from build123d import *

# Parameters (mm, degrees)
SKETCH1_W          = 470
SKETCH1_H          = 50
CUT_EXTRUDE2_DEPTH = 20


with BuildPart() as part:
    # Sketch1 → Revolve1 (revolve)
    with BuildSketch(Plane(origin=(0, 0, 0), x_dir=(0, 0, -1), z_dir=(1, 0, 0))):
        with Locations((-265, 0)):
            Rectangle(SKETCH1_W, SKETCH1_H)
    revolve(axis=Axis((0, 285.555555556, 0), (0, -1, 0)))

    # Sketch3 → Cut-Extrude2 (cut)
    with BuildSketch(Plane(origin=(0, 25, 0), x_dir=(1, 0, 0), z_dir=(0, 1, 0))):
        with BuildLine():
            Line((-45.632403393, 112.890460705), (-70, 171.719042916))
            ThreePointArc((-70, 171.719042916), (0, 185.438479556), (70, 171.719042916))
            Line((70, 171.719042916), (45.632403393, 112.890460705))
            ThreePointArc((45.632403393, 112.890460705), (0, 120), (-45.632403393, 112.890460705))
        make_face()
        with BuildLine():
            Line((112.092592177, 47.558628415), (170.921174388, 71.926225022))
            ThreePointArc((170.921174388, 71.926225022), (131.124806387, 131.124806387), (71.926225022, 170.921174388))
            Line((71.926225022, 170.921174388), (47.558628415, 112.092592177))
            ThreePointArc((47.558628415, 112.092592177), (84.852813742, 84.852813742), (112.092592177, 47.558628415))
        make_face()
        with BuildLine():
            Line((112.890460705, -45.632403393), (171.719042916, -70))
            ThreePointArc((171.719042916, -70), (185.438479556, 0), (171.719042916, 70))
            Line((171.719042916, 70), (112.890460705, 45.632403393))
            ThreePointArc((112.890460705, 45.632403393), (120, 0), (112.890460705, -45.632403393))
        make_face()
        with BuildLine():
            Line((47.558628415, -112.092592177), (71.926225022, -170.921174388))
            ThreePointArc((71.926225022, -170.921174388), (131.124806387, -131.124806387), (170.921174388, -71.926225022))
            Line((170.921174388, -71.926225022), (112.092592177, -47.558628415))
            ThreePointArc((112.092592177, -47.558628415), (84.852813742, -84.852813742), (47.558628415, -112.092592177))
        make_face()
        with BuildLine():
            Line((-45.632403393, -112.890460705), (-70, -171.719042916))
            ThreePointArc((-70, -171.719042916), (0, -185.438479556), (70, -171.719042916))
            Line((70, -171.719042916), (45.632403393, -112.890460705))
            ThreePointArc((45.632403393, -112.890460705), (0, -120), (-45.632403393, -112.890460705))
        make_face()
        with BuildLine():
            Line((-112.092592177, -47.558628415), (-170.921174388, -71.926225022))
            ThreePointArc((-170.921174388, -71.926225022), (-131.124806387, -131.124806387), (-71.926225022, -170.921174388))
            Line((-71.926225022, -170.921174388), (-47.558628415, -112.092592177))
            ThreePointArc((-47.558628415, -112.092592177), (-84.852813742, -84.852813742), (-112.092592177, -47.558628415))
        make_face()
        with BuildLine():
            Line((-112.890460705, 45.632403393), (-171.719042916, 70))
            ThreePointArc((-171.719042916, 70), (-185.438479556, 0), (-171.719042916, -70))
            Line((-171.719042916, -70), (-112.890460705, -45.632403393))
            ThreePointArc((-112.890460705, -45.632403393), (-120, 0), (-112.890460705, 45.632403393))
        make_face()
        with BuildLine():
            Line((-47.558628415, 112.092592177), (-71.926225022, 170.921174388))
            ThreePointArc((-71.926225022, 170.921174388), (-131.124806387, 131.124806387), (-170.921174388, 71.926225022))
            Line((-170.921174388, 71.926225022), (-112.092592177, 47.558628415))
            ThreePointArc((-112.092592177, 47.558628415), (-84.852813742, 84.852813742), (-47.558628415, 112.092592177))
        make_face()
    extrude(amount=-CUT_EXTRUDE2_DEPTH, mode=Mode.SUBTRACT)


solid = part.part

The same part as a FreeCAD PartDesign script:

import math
import FreeCAD as App
import Part
import Sketcher
Q = App.Units.Quantity

doc = App.newDocument("Part")
body = doc.addObject("PartDesign::Body", "Body")

sketch1 = body.newObject("Sketcher::SketchObject", "Sketch")
sketch1.AttachmentSupport = (doc.getObject("YZ_Plane"), [""])
sketch1.MapMode = "FlatFace"
sketch1.addGeometry([
    Part.LineSegment(App.Vector(25, 500, 0), App.Vector(-25, 500, 0)),
    Part.LineSegment(App.Vector(-25, 500, 0), App.Vector(-25, 30, 0)),
    Part.LineSegment(App.Vector(-25, 30, 0), App.Vector(25, 30, 0)),
    Part.LineSegment(App.Vector(25, 30, 0), App.Vector(25, 500, 0)),
], False)
sketch1.addConstraint([
    Sketcher.Constraint("Coincident", 0, 2, 1, 1),
    Sketcher.Constraint("Coincident", 1, 2, 2, 1),
    Sketcher.Constraint("Coincident", 2, 2, 3, 1),
    Sketcher.Constraint("Coincident", 3, 2, 0, 1),
    Sketcher.Constraint("Horizontal", 0),
    Sketcher.Constraint("Vertical", 1),
    Sketcher.Constraint("Horizontal", 2),
    Sketcher.Constraint("Vertical", 3),
    Sketcher.Constraint("DistanceX", 0, 2, 0, 1, 50.0),
    Sketcher.Constraint("DistanceY", 1, 2, 1, 1, 470.0),
    Sketcher.Constraint("DistanceX", 0, 2, -1, 1, 25.0),
    Sketcher.Constraint("DistanceY", -1, 1, 0, 2, 500.0),
])
revolution = body.newObject("PartDesign::Revolution", "Revolution")
revolution.Profile = sketch1
revolution.ReferenceAxis = (sketch1, ["H_Axis"])
revolution.Angle = 360

sketch2 = body.newObject("Sketcher::SketchObject", "Sketch001")
sketch2.AttachmentSupport = (doc.getObject("XZ_Plane"), [""])
sketch2.MapMode = "FlatFace"
sketch2.AttachmentOffset = App.Placement(App.Vector(0, 0, -25), App.Rotation())
sketch2.addGeometry([
    Part.LineSegment(App.Vector(-70, -171.719043, 0), App.Vector(-45.632403, -112.890461, 0)),
    Part.ArcOfCircle(Part.Circle(App.Vector(0, 30, 0), App.Vector(0, 0, 1), 150), math.radians(-107.711004), math.radians(-72.288996)),
    Part.LineSegment(App.Vector(45.632403, -112.890461, 0), App.Vector(70, -171.719043, 0)),
    Part.ArcOfCircle(Part.Circle(App.Vector(0, 0, 0), App.Vector(0, 0, 1), 185.43848), math.radians(-112.177903), math.radians(-67.822097)),
    Part.LineSegment(App.Vector(112.092592, -47.558628, 0), App.Vector(170.921174, -71.926225, 0)),
    Part.ArcOfCircle(Part.Circle(App.Vector(0, 0, 0), App.Vector(0, 0, 1), 185.43848), math.radians(-67.177903), math.radians(-22.822097)),
    Part.LineSegment(App.Vector(71.926225, -170.921174, 0), App.Vector(47.558628, -112.092592, 0)),
    Part.ArcOfCircle(Part.Circle(App.Vector(-21.213203, 21.213203, 0), App.Vector(0, 0, 1), 150), math.radians(-62.711004), math.radians(-27.288996)),
    Part.LineSegment(App.Vector(112.890461, 45.632403, 0), App.Vector(171.719043, 70, 0)),
    Part.ArcOfCircle(Part.Circle(App.Vector(0, 0, 0), App.Vector(0, 0, 1), 185.43848), math.radians(-22.177903), math.radians(22.177903)),
    Part.LineSegment(App.Vector(171.719043, -70, 0), App.Vector(112.890461, -45.632403, 0)),
    Part.ArcOfCircle(Part.Circle(App.Vector(-30, 0, 0), App.Vector(0, 0, 1), 150), math.radians(-17.711004), math.radians(17.711004)),
    Part.LineSegment(App.Vector(47.558628, 112.092592, 0), App.Vector(71.926225, 170.921174, 0)),
    Part.ArcOfCircle(Part.Circle(App.Vector(0, 0, 0), App.Vector(0, 0, 1), 185.43848), math.radians(22.822097), math.radians(67.177903)),
    Part.LineSegment(App.Vector(170.921174, 71.926225, 0), App.Vector(112.092592, 47.558628, 0)),
    Part.ArcOfCircle(Part.Circle(App.Vector(-21.213203, -21.213203, 0), App.Vector(0, 0, 1), 150), math.radians(27.288996), math.radians(62.711004)),
    Part.LineSegment(App.Vector(-45.632403, 112.890461, 0), App.Vector(-70, 171.719043, 0)),
    Part.ArcOfCircle(Part.Circle(App.Vector(0, 0, 0), App.Vector(0, 0, 1), 185.43848), math.radians(67.822097), math.radians(112.177903)),
    Part.LineSegment(App.Vector(70, 171.719043, 0), App.Vector(45.632403, 112.890461, 0)),
    Part.ArcOfCircle(Part.Circle(App.Vector(0, -30, 0), App.Vector(0, 0, 1), 150), math.radians(72.288996), math.radians(107.711004)),
    Part.LineSegment(App.Vector(-112.092592, 47.558628, 0), App.Vector(-170.921174, 71.926225, 0)),
    Part.ArcOfCircle(Part.Circle(App.Vector(0, 0, 0), App.Vector(0, 0, 1), 185.43848), math.radians(112.822097), math.radians(157.177903)),
    Part.LineSegment(App.Vector(-71.926225, 170.921174, 0), App.Vector(-47.558628, 112.092592, 0)),
    Part.ArcOfCircle(Part.Circle(App.Vector(21.213203, -21.213203, 0), App.Vector(0, 0, 1), 150), math.radians(117.288996), math.radians(152.711004)),
    Part.LineSegment(App.Vector(-112.890461, -45.632403, 0), App.Vector(-171.719043, -70, 0)),
    Part.ArcOfCircle(Part.Circle(App.Vector(0, 0, 0), App.Vector(0, 0, 1), 185.43848), math.radians(157.822097), math.radians(202.177903)),
    Part.LineSegment(App.Vector(-171.719043, 70, 0), App.Vector(-112.890461, 45.632403, 0)),
    Part.ArcOfCircle(Part.Circle(App.Vector(30, 0, 0), App.Vector(0, 0, 1), 150), math.radians(162.288996), math.radians(197.711004)),
    Part.LineSegment(App.Vector(-47.558628, -112.092592, 0), App.Vector(-71.926225, -170.921174, 0)),
    Part.ArcOfCircle(Part.Circle(App.Vector(0, 0, 0), App.Vector(0, 0, 1), 185.43848), math.radians(-157.177903), math.radians(-112.822097)),
    Part.LineSegment(App.Vector(-170.921174, -71.926225, 0), App.Vector(-112.092592, -47.558628, 0)),
    Part.ArcOfCircle(Part.Circle(App.Vector(21.213203, 21.213203, 0), App.Vector(0, 0, 1), 150), math.radians(-152.711004), math.radians(-117.288996)),
], False)
sketch2.addConstraint([
    Sketcher.Constraint("Coincident", 0, 2, 1, 1),
    Sketcher.Constraint("Coincident", 1, 2, 2, 1),
    Sketcher.Constraint("Coincident", 2, 2, 3, 2),
    Sketcher.Constraint("Coincident", 3, 1, 0, 1),
    Sketcher.Constraint("Coincident", 4, 2, 5, 2),
    Sketcher.Constraint("Coincident", 5, 1, 6, 1),
    Sketcher.Constraint("Coincident", 6, 2, 7, 1),
    Sketcher.Constraint("Coincident", 7, 2, 4, 1),
    Sketcher.Constraint("Coincident", 8, 2, 9, 2),
    Sketcher.Constraint("Coincident", 9, 1, 10, 1),
    Sketcher.Constraint("Coincident", 10, 2, 11, 1),
    Sketcher.Constraint("Coincident", 11, 2, 8, 1),
    Sketcher.Constraint("Coincident", 12, 2, 13, 2),
    Sketcher.Constraint("Coincident", 13, 1, 14, 1),
    Sketcher.Constraint("Coincident", 14, 2, 15, 1),
    Sketcher.Constraint("Coincident", 15, 2, 12, 1),
    Sketcher.Constraint("Coincident", 16, 2, 17, 2),
    Sketcher.Constraint("Coincident", 17, 1, 18, 1),
    Sketcher.Constraint("Coincident", 18, 2, 19, 1),
    Sketcher.Constraint("Coincident", 19, 2, 16, 1),
    Sketcher.Constraint("Coincident", 20, 2, 21, 2),
    Sketcher.Constraint("Coincident", 21, 1, 22, 1),
    Sketcher.Constraint("Coincident", 22, 2, 23, 1),
    Sketcher.Constraint("Coincident", 23, 2, 20, 1),
    Sketcher.Constraint("Coincident", 24, 2, 25, 2),
    Sketcher.Constraint("Coincident", 25, 1, 26, 1),
    Sketcher.Constraint("Coincident", 26, 2, 27, 1),
    Sketcher.Constraint("Coincident", 27, 2, 24, 1),
    Sketcher.Constraint("Coincident", 28, 2, 29, 2),
    Sketcher.Constraint("Coincident", 29, 1, 30, 1),
    Sketcher.Constraint("Coincident", 30, 2, 31, 1),
    Sketcher.Constraint("Coincident", 31, 2, 28, 1),
    Sketcher.Constraint("Coincident", 3, 3, -1, 1),
    Sketcher.Constraint("Coincident", 5, 3, -1, 1),
    Sketcher.Constraint("Coincident", 9, 3, -1, 1),
    Sketcher.Constraint("Coincident", 13, 3, -1, 1),
    Sketcher.Constraint("Coincident", 17, 3, -1, 1),
    Sketcher.Constraint("Coincident", 21, 3, -1, 1),
    Sketcher.Constraint("Coincident", 25, 3, -1, 1),
    Sketcher.Constraint("Coincident", 29, 3, -1, 1),
    Sketcher.Constraint("Equal", 3, 5),
    Sketcher.Constraint("Equal", 1, 7),
    Sketcher.Constraint("Equal", 5, 9),
    Sketcher.Constraint("Equal", 7, 11),
    Sketcher.Constraint("Equal", 9, 13),
    Sketcher.Constraint("Equal", 11, 15),
    Sketcher.Constraint("Equal", 13, 17),
    Sketcher.Constraint("Equal", 15, 19),
    Sketcher.Constraint("Equal", 17, 21),
    Sketcher.Constraint("Equal", 19, 23),
    Sketcher.Constraint("Equal", 21, 25),
    Sketcher.Constraint("Equal", 23, 27),
    Sketcher.Constraint("Equal", 25, 29),
    Sketcher.Constraint("Equal", 27, 31),
    Sketcher.Constraint("Symmetric", 1, 3, 19, 3, -1, 1),
    Sketcher.Constraint("Symmetric", 7, 3, 23, 3, -1, 1),
    Sketcher.Constraint("Symmetric", 11, 3, 27, 3, -1, 1),
    Sketcher.Constraint("Symmetric", 15, 3, 31, 3, -1, 1),
    Sketcher.Constraint("Symmetric", 15, 3, 23, 3, -2),
    Sketcher.Constraint("Symmetric", 0, 2, 1, 2, -2),
    Sketcher.Constraint("Symmetric", 11, 2, 26, 2, -2),
    Sketcher.Constraint("Perpendicular", 0, 4),
    Sketcher.Constraint("Parallel", 2, 6),
    Sketcher.Constraint("Perpendicular", 6, 8),
    Sketcher.Constraint("Parallel", 4, 10),
    Sketcher.Constraint("Perpendicular", 10, 12),
    Sketcher.Constraint("Parallel", 8, 14),
    Sketcher.Constraint("Perpendicular", 14, 16),
    Sketcher.Constraint("Parallel", 12, 18),
    Sketcher.Constraint("Perpendicular", 18, 20),
    Sketcher.Constraint("Parallel", 16, 22),
    Sketcher.Constraint("Perpendicular", 22, 24),
    Sketcher.Constraint("Parallel", 20, 26),
    Sketcher.Constraint("Perpendicular", 26, 28),
    Sketcher.Constraint("Parallel", 24, 30),
    Sketcher.Constraint("Horizontal", 2, 2, 3, 1),
    Sketcher.Constraint("Horizontal", 16, 2, 17, 1),
    Sketcher.Constraint("Horizontal", 13, 1, 20, 2),
    Sketcher.Constraint("Horizontal", 12, 2, 21, 1),
    Sketcher.Constraint("Horizontal", 9, 1, 24, 2),
    Sketcher.Constraint("Horizontal", 5, 1, 28, 2),
    Sketcher.Constraint("Horizontal", 4, 2, 29, 1),
    Sketcher.Constraint("Vertical", 8, 2, 9, 1),
    Sketcher.Constraint("Vertical", 5, 1, 12, 2),
    Sketcher.Constraint("Vertical", 4, 2, 13, 1),
    Sketcher.Constraint("Vertical", 3, 1, 16, 2),
    Sketcher.Constraint("Equal", 2, 4),
    Sketcher.Constraint("Equal", 4, 6),
    Sketcher.Constraint("Equal", 6, 8),
    Sketcher.Constraint("Radius", 1, 150.0),
    Sketcher.Constraint("DistanceY", -1, 1, 1, 3, 30.0),
    Sketcher.Constraint("DistanceX", 11, 3, -1, 1, 30.0),
    Sketcher.Constraint("DistanceX", -1, 1, 2, 2, 70.0),
    Sketcher.Constraint("Angle", 0, Q("67.5 deg")),
    Sketcher.Constraint("Radius", 3, 185.43848),
    Sketcher.Constraint("DistanceX", 0, 2, 15, 3, 24.4192),
    Sketcher.Constraint("DistanceX", -1, 1, 6, 2, 47.558628),
])
pocket1 = body.newObject("PartDesign::Pocket", "Pocket")
pocket1.Profile = sketch2
pocket1.Length = 20
pocket1.Reversed = True

doc.recompute()
